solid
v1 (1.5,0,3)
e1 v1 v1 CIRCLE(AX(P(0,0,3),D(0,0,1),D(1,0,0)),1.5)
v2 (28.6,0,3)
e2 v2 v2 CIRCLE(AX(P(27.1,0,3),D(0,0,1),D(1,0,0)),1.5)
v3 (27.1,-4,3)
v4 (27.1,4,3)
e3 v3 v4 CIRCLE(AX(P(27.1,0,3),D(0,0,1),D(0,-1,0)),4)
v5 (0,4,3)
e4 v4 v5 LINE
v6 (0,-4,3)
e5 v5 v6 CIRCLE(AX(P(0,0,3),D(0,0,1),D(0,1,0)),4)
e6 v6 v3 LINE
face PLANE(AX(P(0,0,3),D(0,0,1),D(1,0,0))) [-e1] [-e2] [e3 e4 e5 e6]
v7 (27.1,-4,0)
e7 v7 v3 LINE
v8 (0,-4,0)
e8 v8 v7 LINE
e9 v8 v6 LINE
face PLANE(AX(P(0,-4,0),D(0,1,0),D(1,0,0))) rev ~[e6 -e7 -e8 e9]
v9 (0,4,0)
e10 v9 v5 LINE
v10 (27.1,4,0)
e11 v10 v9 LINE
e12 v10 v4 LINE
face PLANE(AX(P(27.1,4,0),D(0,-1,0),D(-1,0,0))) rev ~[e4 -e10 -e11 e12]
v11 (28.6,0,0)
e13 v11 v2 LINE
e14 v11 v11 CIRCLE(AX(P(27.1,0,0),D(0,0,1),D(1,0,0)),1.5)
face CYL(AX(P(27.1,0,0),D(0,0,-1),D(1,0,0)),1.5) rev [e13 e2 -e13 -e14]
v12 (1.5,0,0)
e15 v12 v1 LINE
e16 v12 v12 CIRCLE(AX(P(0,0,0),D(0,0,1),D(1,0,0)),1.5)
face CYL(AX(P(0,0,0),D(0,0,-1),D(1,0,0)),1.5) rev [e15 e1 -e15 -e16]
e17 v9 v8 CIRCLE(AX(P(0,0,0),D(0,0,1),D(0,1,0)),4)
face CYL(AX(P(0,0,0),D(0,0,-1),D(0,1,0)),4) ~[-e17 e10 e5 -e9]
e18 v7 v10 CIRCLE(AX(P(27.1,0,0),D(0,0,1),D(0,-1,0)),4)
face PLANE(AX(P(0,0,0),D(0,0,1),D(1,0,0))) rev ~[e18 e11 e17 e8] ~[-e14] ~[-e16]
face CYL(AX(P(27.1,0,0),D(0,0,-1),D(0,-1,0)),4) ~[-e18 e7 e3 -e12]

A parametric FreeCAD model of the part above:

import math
import FreeCAD as App
import Part
import Sketcher
Q = App.Units.Quantity

doc = App.newDocument("Part")
body = doc.addObject("PartDesign::Body", "Body")

# Sketch on XY plane
sketch1 = body.newObject("Sketcher::SketchObject", "Sketch")
sketch1.AttachmentSupport = (doc.getObject("XY_Plane"), [""])
sketch1.MapMode = "FlatFace"
sketch1.addGeometry(Part.ArcOfCircle(Part.Circle(App.Vector(0, 0, 0), App.Vector(0, 0, 1), 4), math.radians(90), math.radians(270)), False)
sketch1.addGeometry(Part.LineSegment(App.Vector(0, -4, 0), App.Vector(27.1, -4, 0)), False)
sketch1.addGeometry(Part.ArcOfCircle(Part.Circle(App.Vector(27.1, 0, 0), App.Vector(0, 0, 1), 4), math.radians(-90), math.radians(90)), False)
sketch1.addGeometry(Part.LineSegment(App.Vector(27.1, 4, 0), App.Vector(0, 4, 0)), False)
sketch1.addGeometry(Part.Circle(App.Vector(0, 0, 0), App.Vector(0, 0, 1), 1.5), False)
sketch1.addGeometry(Part.Circle(App.Vector(27.1, 0, 0), App.Vector(0, 0, 1), 1.5), False)
sketch1.addConstraint(Sketcher.Constraint("Tangent", 0, 2, 1, 1))
sketch1.addConstraint(Sketcher.Constraint("Tangent", 1, 2, 2, 1))
sketch1.addConstraint(Sketcher.Constraint("Tangent", 2, 2, 3, 1))
sketch1.addConstraint(Sketcher.Constraint("Tangent", 3, 2, 0, 1))
sketch1.addConstraint(Sketcher.Constraint("Horizontal", 1))
sketch1.addConstraint(Sketcher.Constraint("Horizontal", 3))
sketch1.addConstraint(Sketcher.Constraint("Coincident", 0, 3, -1, 1))
sketch1.addConstraint(Sketcher.Constraint("Coincident", 4, 3, -1, 1))
sketch1.addConstraint(Sketcher.Constraint("Coincident", 5, 3, 2, 3))
sketch1.addConstraint(Sketcher.Constraint("Equal", 4, 5))
sketch1.addConstraint(Sketcher.Constraint("Diameter", 4, Q("3 mm")))
sketch1.addConstraint(Sketcher.Constraint("Radius", 0, Q("4 mm")))
sketch1.addConstraint(Sketcher.Constraint("DistanceX", 1, 1, 1, 2, Q("27.1 mm")))
pad1 = body.newObject("PartDesign::Pad", "Pad")
pad1.Profile = sketch1
pad1.Length = 3

doc.recompute()
